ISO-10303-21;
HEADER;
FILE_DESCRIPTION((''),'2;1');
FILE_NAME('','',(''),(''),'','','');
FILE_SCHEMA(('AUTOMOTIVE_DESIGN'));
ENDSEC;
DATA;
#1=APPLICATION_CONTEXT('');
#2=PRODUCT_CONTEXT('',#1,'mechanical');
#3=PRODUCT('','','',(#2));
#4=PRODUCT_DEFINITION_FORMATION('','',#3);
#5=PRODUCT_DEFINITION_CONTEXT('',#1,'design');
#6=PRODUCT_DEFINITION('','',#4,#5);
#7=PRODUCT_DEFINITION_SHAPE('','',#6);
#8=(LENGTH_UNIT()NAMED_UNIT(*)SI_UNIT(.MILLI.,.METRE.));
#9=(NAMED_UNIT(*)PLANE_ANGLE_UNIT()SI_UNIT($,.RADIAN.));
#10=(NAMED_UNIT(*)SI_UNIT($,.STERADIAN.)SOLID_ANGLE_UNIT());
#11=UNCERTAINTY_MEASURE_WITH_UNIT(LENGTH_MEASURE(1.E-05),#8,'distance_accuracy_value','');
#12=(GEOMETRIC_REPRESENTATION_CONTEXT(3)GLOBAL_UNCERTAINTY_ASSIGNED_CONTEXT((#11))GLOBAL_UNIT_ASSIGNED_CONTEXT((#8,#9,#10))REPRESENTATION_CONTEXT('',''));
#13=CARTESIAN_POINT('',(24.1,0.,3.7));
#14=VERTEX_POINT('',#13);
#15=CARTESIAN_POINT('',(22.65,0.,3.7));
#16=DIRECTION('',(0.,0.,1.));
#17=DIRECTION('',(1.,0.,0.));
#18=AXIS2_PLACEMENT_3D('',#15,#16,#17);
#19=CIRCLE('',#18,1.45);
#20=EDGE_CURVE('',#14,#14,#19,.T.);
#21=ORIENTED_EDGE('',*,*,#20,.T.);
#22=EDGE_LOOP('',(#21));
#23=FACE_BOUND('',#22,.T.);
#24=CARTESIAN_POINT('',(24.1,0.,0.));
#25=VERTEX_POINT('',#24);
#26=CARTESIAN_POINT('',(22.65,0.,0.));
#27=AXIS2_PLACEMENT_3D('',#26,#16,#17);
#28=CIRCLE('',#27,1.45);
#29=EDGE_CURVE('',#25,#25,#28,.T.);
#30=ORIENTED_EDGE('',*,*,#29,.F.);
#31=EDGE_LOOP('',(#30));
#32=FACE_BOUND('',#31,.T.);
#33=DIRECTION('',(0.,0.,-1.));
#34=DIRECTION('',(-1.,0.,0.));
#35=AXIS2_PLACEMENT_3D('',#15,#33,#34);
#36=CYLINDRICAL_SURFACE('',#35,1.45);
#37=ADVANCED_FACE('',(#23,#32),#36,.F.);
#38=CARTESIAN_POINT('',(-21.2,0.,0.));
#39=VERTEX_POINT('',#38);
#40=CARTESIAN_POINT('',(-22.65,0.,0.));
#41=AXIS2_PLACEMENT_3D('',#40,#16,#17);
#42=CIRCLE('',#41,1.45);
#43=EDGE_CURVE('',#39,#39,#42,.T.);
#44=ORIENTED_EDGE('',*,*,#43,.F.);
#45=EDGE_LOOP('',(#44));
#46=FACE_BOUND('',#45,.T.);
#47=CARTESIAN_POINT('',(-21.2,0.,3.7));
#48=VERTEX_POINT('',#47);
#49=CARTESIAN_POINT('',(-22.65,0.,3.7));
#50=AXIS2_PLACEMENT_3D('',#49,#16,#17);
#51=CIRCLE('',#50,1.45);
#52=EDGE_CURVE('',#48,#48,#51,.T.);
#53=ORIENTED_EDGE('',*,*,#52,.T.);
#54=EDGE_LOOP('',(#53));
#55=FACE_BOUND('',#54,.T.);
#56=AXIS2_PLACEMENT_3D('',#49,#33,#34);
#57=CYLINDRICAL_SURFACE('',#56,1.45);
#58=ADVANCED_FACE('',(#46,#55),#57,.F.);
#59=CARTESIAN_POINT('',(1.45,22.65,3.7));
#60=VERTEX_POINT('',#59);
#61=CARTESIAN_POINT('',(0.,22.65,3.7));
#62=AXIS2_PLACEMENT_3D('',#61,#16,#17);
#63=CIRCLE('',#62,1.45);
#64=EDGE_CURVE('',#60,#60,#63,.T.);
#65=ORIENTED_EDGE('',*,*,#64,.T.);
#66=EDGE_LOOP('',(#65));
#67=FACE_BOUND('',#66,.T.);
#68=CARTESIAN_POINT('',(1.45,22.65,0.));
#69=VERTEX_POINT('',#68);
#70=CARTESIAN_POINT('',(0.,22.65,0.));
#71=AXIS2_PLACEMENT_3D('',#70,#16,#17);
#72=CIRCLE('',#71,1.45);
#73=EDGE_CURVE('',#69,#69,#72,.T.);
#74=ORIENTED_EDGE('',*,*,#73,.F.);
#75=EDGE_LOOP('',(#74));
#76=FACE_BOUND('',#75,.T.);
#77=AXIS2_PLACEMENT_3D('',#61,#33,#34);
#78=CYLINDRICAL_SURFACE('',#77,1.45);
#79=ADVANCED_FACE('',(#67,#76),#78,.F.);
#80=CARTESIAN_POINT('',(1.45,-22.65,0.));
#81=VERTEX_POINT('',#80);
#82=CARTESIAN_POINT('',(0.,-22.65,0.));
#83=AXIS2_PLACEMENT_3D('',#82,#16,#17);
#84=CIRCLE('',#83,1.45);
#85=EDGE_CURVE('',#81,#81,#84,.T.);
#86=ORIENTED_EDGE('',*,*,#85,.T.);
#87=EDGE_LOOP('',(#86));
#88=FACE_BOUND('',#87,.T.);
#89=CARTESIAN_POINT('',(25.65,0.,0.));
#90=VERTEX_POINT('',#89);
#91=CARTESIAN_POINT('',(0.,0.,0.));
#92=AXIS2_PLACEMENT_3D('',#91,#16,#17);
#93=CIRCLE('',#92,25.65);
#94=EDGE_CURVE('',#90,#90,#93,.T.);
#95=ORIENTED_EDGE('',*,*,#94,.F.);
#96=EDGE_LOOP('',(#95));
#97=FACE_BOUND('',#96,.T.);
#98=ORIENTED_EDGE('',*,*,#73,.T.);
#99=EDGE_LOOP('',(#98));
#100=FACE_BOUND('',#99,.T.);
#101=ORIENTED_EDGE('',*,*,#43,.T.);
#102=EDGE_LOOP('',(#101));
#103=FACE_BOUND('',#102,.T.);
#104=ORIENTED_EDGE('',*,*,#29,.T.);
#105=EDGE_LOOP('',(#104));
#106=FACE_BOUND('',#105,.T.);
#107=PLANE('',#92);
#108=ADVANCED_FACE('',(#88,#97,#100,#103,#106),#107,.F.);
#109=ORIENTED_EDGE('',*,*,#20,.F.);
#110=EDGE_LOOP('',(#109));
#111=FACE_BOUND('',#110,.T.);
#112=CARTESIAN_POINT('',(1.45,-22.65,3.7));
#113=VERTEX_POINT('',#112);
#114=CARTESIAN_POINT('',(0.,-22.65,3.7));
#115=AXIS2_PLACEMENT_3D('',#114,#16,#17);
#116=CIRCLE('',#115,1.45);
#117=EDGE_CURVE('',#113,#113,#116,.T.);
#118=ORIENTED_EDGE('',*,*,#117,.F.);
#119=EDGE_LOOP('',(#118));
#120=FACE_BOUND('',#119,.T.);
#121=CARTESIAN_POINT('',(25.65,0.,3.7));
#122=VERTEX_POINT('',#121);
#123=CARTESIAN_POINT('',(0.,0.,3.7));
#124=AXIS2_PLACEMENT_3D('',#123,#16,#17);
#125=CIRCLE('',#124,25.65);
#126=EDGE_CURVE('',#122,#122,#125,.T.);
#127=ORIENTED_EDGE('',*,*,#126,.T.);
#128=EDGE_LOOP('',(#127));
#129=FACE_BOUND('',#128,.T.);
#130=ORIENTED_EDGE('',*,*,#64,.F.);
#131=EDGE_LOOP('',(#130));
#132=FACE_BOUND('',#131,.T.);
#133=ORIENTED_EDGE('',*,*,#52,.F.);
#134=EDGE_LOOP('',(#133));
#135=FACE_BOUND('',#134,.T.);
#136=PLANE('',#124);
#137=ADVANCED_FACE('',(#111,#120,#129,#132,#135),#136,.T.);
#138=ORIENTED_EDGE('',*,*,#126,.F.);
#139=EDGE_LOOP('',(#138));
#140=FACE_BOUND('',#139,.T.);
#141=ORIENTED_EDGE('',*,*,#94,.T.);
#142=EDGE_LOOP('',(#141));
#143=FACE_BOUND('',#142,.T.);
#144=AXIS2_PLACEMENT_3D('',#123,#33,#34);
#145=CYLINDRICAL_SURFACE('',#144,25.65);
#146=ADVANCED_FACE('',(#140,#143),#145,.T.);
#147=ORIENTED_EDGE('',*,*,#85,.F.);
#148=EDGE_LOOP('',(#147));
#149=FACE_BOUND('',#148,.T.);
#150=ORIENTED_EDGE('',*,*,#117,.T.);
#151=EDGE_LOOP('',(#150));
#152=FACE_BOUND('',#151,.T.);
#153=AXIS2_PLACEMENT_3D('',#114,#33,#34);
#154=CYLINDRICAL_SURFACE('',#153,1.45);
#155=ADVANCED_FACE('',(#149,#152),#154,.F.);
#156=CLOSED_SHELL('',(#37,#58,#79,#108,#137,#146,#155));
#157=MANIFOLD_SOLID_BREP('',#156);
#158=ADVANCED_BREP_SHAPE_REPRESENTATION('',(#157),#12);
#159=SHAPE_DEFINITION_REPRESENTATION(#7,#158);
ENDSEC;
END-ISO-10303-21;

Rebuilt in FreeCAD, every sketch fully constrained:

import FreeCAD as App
import Part
import Sketcher

doc = App.newDocument("Part")
body = doc.addObject("PartDesign::Body", "Body")

# Sketch on XY plane
sketch1 = body.newObject("Sketcher::SketchObject", "Sketch")
sketch1.AttachmentSupport = (doc.getObject("XY_Plane"), [""])
sketch1.MapMode = "FlatFace"
sketch1.addGeometry(Part.Circle(App.Vector(0, 0, 0), App.Vector(0, 0, 1), 25.65), False)
sketch1.addGeometry(Part.Circle(App.Vector(0, -22.65, 0), App.Vector(0, 0, 1), 1.45), False)
sketch1.addGeometry(Part.Circle(App.Vector(-22.65, 0, 0), App.Vector(0, 0, 1), 1.45), False)
sketch1.addGeometry(Part.Circle(App.Vector(22.65, 0, 0), App.Vector(0, 0, 1), 1.45), False)
sketch1.addGeometry(Part.Circle(App.Vector(0, 22.65, 0), App.Vector(0, 0, 1), 1.45), False)
sketch1.addConstraint(Sketcher.Constraint("Coincident", 0, 3, -1, 1))
sketch1.addConstraint(Sketcher.Constraint("Equal", 1, 2))
sketch1.addConstraint(Sketcher.Constraint("Equal", 2, 3))
sketch1.addConstraint(Sketcher.Constraint("Equal", 3, 4))
sketch1.addConstraint(Sketcher.Constraint("Symmetric", 2, 3, 3, 3, -1, 1))
sketch1.addConstraint(Sketcher.Constraint("Symmetric", 1, 3, 4, 3, -1, 1))
sketch1.addConstraint(Sketcher.Constraint("PointOnObject", 1, 3, -2))
sketch1.addConstraint(Sketcher.Constraint("PointOnObject", 2, 3, -1))
sketch1.addConstraint(Sketcher.Constraint("Diameter", 0, 51.3))
sketch1.addConstraint(Sketcher.Constraint("Diameter", 1, 2.9))
sketch1.addConstraint(Sketcher.Constraint("DistanceX", 2, 3, 3, 3, 45.3))
sketch1.addConstraint(Sketcher.Constraint("DistanceY", 1, 3, 4, 3, 45.3))
pad1 = body.newObject("PartDesign::Pad", "Pad")
pad1.Profile = sketch1
pad1.Length = 3.7

doc.recompute()
